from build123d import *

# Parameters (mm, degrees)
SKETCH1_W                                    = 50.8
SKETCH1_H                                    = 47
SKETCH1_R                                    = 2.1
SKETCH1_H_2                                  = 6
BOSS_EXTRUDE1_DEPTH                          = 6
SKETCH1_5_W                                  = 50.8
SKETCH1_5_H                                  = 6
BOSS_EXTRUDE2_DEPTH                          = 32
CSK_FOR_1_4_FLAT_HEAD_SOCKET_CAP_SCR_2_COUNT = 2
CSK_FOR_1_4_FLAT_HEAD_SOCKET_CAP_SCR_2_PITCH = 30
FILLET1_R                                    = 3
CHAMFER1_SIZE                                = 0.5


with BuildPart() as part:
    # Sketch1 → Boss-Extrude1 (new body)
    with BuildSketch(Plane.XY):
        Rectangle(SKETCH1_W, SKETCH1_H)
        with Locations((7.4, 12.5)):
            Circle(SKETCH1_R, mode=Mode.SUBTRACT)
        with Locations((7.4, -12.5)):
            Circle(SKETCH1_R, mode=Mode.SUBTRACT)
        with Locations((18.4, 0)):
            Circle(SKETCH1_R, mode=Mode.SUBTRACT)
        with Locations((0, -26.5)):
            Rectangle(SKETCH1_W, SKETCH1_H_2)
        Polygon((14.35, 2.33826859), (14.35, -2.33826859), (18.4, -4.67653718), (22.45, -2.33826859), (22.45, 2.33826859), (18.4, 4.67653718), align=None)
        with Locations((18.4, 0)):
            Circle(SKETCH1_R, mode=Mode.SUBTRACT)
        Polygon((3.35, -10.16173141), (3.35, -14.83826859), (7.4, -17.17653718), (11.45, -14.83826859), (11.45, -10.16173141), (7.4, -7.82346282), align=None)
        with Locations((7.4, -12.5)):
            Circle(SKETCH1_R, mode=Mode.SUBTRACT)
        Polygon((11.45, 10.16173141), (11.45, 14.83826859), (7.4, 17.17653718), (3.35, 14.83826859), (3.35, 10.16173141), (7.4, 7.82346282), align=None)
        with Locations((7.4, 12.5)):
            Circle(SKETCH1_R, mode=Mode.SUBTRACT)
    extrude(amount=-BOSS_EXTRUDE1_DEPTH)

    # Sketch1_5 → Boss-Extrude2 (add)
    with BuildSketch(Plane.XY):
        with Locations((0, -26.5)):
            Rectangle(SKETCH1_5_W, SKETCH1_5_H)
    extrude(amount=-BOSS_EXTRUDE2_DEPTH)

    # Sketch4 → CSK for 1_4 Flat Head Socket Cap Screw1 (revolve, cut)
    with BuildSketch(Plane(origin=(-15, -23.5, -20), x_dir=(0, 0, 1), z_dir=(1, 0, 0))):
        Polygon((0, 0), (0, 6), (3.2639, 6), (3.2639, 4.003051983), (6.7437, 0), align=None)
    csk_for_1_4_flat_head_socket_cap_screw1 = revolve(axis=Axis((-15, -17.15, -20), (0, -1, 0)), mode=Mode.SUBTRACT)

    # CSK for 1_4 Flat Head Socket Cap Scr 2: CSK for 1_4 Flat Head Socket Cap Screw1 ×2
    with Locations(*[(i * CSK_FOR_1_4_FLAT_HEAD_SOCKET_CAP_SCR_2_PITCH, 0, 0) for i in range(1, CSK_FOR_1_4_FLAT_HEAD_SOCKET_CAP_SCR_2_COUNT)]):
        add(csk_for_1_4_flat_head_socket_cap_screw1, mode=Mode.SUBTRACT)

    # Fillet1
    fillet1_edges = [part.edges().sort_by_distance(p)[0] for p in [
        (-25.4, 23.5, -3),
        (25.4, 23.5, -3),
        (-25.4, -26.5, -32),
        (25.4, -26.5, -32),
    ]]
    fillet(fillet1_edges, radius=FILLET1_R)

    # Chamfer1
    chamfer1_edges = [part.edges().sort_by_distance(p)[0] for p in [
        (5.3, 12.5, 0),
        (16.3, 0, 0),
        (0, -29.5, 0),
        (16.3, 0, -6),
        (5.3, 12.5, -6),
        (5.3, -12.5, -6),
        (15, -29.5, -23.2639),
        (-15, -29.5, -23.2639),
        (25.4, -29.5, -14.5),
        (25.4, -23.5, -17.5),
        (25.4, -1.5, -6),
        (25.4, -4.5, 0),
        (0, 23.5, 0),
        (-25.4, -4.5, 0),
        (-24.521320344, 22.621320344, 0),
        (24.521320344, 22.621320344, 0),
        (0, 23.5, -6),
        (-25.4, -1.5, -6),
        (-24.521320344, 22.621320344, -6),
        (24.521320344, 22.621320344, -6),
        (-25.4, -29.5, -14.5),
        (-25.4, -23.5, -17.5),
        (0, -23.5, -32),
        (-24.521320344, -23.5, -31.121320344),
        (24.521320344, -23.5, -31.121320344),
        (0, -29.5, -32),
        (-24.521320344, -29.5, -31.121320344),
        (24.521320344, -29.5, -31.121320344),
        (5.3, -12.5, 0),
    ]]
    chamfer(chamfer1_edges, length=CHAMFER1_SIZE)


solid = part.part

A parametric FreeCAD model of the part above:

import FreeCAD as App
import Part
import Sketcher
Q = App.Units.Quantity


def edges_at(feature, points):
    """Names of the edges that pass closest to the given points."""
    edges = feature.Shape.Edges
    near = lambda p: min(range(len(edges)), key=lambda i: edges[i].distToShape(Part.Vertex(*p))[0])
    return sorted({f"Edge{near(p) + 1}" for p in points})


def add_polygon(sketch, points):
    """Adds a closed chain of lines whose ends are joined by coincident constraints."""
    first, n = sketch.GeometryCount, len(points)
    for a, b in zip(points, points[1:] + points[:1]):
        sketch.addGeometry(Part.LineSegment(App.Vector(*a, 0), App.Vector(*b, 0)), False)
    for i in range(n):
        sketch.addConstraint(Sketcher.Constraint("Coincident", first + i, 2, first + (i + 1) % n, 1))

doc = App.newDocument("Part")
body = doc.addObject("PartDesign::Body", "Body")

sketch1 = doc.addObject("Sketcher::SketchObject", "Sketch")
body.addObject(sketch1)
sketch1.AttachmentSupport = (doc.XY_Plane, [""])
sketch1.MapMode = "FlatFace"
add_polygon(sketch1, [(-25.4, 23.5), (-25.4, -29.5), (25.4, -29.5), (25.4, 23.5)])
sketch1.addGeometry(Part.Circle(App.Vector(7.4, -12.5, 0), App.Vector(0, 0, 1), 2.1), False)
sketch1.addGeometry(Part.Circle(App.Vector(18.4, 0, 0), App.Vector(0, 0, 1), 2.1), False)
sketch1.addGeometry(Part.Circle(App.Vector(7.4, 12.5, 0), App.Vector(0, 0, 1), 2.1), False)
sketch1.addConstraint([
    Sketcher.Constraint("Vertical", 0),
    Sketcher.Constraint("Horizontal", 1),
    Sketcher.Constraint("Vertical", 2),
    Sketcher.Constraint("Horizontal", 3),
    Sketcher.Constraint("Equal", 4, 5),
    Sketcher.Constraint("Equal", 5, 6),
    Sketcher.Constraint("Symmetric", 4, 3, 6, 3, -1),
    Sketcher.Constraint("PointOnObject", 5, 3, -1),
    Sketcher.Constraint("Diameter", 4, 4.2),
    Sketcher.Constraint("DistanceY", 0, 2, 0, 1, 53.0),
    Sketcher.Constraint("DistanceX", 1, 1, 1, 2, 50.8),
    Sketcher.Constraint("DistanceX", 4, 3, 5, 3, 11.0),
    Sketcher.Constraint("DistanceY", 4, 3, 6, 3, 25.0),
    Sketcher.Constraint("DistanceY", 0, 2, 4, 3, 17.0),
    Sketcher.Constraint("DistanceX", 4, 3, 1, 2, 18.0),
    Sketcher.Constraint("DistanceX", -1, 1, 4, 3, 7.4),
])
pad1 = doc.addObject("PartDesign::Pad", "Pad")
body.addObject(pad1)
pad1.Profile = sketch1
pad1.Length = 6
pad1.Reversed = True

sketch2 = doc.addObject("Sketcher::SketchObject", "Sketch001")
body.addObject(sketch2)
sketch2.AttachmentSupport = (doc.XY_Plane, [""])
sketch2.MapMode = "FlatFace"
add_polygon(sketch2, [(-25, -24), (-25, -30), (25, -30), (25, -24)])
sketch2.addConstraint([
    Sketcher.Constraint("Vertical", 0),
    Sketcher.Constraint("Horizontal", 1),
    Sketcher.Constraint("Vertical", 2),
    Sketcher.Constraint("Horizontal", 3),
    Sketcher.Constraint("DistanceY", 0, 2, 0, 1, 6.0),
    Sketcher.Constraint("DistanceX", 1, 1, 1, 2, 50.8),
    Sketcher.Constraint("DistanceX", 0, 2, -1, 1, 25.4),
    Sketcher.Constraint("DistanceY", 0, 2, -1, 1, 29.5),
])
pad2 = doc.addObject("PartDesign::Pad", "Pad001")
body.addObject(pad2)
pad2.Profile = sketch2
pad2.Length = 32
pad2.Reversed = True

sketch3 = doc.addObject("Sketcher::SketchObject", "Sketch002")
body.addObject(sketch3)
sketch3.AttachmentSupport = (doc.YZ_Plane, [""])
sketch3.MapMode = "FlatFace"
sketch3.AttachmentOffset = App.Placement(App.Vector(0, 0, -15), App.Rotation())
add_polygon(sketch3, [(-29.5, -20), (-23.5, -20), (-23.5, -13.3), (-27.5, -16.7), (-29.5, -16.7)])
sketch3.addGeometry(Part.LineSegment(App.Vector(-23.5, -20, 0), App.Vector(-29.5, -20, 0)), True)
sketch3.addConstraint([
    Sketcher.Constraint("Horizontal", 0),
    Sketcher.Constraint("Vertical", 1),
    Sketcher.Constraint("Horizontal", 3),
    Sketcher.Constraint("Vertical", 4),
    Sketcher.Constraint("Horizontal", 5),
    Sketcher.Constraint("Coincident", 5, 1, 0, 2),
    Sketcher.Constraint("Vertical", 3, 2, 5, 2),
    Sketcher.Constraint("DistanceX", 0, 1, 0, 2, 6.0),
    Sketcher.Constraint("Angle", 2, Q("-139 deg")),
    Sketcher.Constraint("DistanceY", 0, 2, -1, 1, 20.0),
    Sketcher.Constraint("DistanceX", 0, 2, -1, 1, 23.5),
    Sketcher.Constraint("DistanceY", 1, 1, 1, 2, 6.7437),
    Sketcher.Constraint("DistanceY", 4, 2, 4, 1, 3.2639),
])
groove = doc.addObject("PartDesign::Groove", "Groove")
body.addObject(groove)
groove.Profile = sketch3
groove.ReferenceAxis = (sketch3, ["Axis0"])
groove.Angle = 360
doc.recompute()

linearpattern = doc.addObject("PartDesign::LinearPattern", "LinearPattern")
body.addObject(linearpattern)
linearpattern.Originals = [groove]
linearpattern.Direction = (doc.X_Axis, [""])
linearpattern.Mode = "offset"
linearpattern.Offset = 30
linearpattern.Occurrences = 2
body.Tip = linearpattern
doc.recompute()

fillet = doc.addObject("PartDesign::Fillet", "Fillet")
body.addObject(fillet)
fillet.Base = (linearpattern, edges_at(linearpattern, [
    (-25.4, 23.5, -3),
    (25.4, 23.5, -3),
    (-25.4, -26.5, -32),
    (25.4, -26.5, -32),
]))
fillet.Radius = 3
doc.recompute()

chamfer = doc.addObject("PartDesign::Chamfer", "Chamfer")
body.addObject(chamfer)
chamfer.Base = (fillet, edges_at(fillet, [
    (5.3, 12.5, 0),
    (16.3, 0, 0),
    (0, -29.5, 0),
    (16.3, 0, -6),
    (5.3, 12.5, -6),
    (5.3, -12.5, -6),
    (15, -29.5, -23.264),
    (-15, -29.5, -23.264),
    (25.4, -29.5, -14.5),
    (25.4, -23.5, -17.5),
    (25.4, -1.5, -6),
    (25.4, -4.5, 0),
    (0, 23.5, 0),
    (-25.4, -4.5, 0),
    (-24.521, 22.621, 0),
    (24.521, 22.621, 0),
    (0, 23.5, -6),
    (-25.4, -1.5, -6),
    (-24.521, 22.621, -6),
    (24.521, 22.621, -6),
    (-25.4, -29.5, -14.5),
    (-25.4, -23.5, -17.5),
    (0, -23.5, -32),
    (-24.521, -23.5, -31.121),
    (24.521, -23.5, -31.121),
    (0, -29.5, -32),
    (-24.521, -29.5, -31.121),
    (24.521, -29.5, -31.121),
    (5.3, -12.5, 0),
]))
chamfer.Size = 0.5

doc.recompute()
